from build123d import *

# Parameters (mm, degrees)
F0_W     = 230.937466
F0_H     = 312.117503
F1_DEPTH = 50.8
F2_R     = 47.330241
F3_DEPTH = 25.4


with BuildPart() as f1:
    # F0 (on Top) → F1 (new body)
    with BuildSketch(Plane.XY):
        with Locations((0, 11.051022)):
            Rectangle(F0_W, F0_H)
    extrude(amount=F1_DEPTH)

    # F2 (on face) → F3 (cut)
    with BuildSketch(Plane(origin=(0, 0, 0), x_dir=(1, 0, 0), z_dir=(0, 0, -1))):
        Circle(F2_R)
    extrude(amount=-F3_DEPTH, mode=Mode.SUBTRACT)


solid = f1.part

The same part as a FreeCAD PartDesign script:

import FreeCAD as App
import Part
import Sketcher
Q = App.Units.Quantity


def add_polygon(sketch, points):
    """Adds a closed chain of lines whose ends are joined by coincident constraints."""
    first, n = sketch.GeometryCount, len(points)
    for a, b in zip(points, points[1:] + points[:1]):
        sketch.addGeometry(Part.LineSegment(App.Vector(*a, 0), App.Vector(*b, 0)), False)
    for i in range(n):
        sketch.addConstraint(Sketcher.Constraint("Coincident", first + i, 2, first + (i + 1) % n, 1))

doc = App.newDocument("Part")
body = doc.addObject("PartDesign::Body", "Body")

# Sketch on XY plane
sketch1 = body.newObject("Sketcher::SketchObject", "Sketch")
sketch1.AttachmentSupport = (doc.getObject("XY_Plane"), [""])
sketch1.MapMode = "FlatFace"
add_polygon(sketch1, [(-115.468733, 167.109773), (-115.468733, -145.00773), (115.468733, -145.00773), (115.468733, 167.109773)])  # lines 0-3
sketch1.addConstraint(Sketcher.Constraint("Vertical", 0))
sketch1.addConstraint(Sketcher.Constraint("Horizontal", 1))
sketch1.addConstraint(Sketcher.Constraint("Vertical", 2))
sketch1.addConstraint(Sketcher.Constraint("Horizontal", 3))
sketch1.addConstraint(Sketcher.Constraint("DistanceX", 1, 1, 1, 2, 230.937466))
sketch1.addConstraint(Sketcher.Constraint("DistanceY", 0, 2, 0, 1, 312.117503))
sketch1.addConstraint(Sketcher.Constraint("DistanceY", 0, 2, -1, 1, 145.00773))
sketch1.addConstraint(Sketcher.Constraint("DistanceX", 0, 2, -1, 1, 115.468733))
pad1 = body.newObject("PartDesign::Pad", "Pad")
pad1.Profile = sketch1
pad1.Length = Q("2 in")

# Sketch on XY plane
sketch2 = body.newObject("Sketcher::SketchObject", "Sketch001")
sketch2.AttachmentSupport = (doc.getObject("XY_Plane"), [""])
sketch2.MapMode = "FlatFace"
sketch2.addGeometry(Part.Circle(App.Vector(0, 0, 0), App.Vector(0, 0, 1), 47.330241), False)
sketch2.addConstraint(Sketcher.Constraint("Coincident", 0, 3, -1, 1))
sketch2.addConstraint(Sketcher.Constraint("Diameter", 0, 94.660482))
pocket1 = body.newObject("PartDesign::Pocket", "Pocket")
pocket1.Profile = sketch2
pocket1.Length = Q("1 in")
pocket1.Reversed = True

doc.recompute()
